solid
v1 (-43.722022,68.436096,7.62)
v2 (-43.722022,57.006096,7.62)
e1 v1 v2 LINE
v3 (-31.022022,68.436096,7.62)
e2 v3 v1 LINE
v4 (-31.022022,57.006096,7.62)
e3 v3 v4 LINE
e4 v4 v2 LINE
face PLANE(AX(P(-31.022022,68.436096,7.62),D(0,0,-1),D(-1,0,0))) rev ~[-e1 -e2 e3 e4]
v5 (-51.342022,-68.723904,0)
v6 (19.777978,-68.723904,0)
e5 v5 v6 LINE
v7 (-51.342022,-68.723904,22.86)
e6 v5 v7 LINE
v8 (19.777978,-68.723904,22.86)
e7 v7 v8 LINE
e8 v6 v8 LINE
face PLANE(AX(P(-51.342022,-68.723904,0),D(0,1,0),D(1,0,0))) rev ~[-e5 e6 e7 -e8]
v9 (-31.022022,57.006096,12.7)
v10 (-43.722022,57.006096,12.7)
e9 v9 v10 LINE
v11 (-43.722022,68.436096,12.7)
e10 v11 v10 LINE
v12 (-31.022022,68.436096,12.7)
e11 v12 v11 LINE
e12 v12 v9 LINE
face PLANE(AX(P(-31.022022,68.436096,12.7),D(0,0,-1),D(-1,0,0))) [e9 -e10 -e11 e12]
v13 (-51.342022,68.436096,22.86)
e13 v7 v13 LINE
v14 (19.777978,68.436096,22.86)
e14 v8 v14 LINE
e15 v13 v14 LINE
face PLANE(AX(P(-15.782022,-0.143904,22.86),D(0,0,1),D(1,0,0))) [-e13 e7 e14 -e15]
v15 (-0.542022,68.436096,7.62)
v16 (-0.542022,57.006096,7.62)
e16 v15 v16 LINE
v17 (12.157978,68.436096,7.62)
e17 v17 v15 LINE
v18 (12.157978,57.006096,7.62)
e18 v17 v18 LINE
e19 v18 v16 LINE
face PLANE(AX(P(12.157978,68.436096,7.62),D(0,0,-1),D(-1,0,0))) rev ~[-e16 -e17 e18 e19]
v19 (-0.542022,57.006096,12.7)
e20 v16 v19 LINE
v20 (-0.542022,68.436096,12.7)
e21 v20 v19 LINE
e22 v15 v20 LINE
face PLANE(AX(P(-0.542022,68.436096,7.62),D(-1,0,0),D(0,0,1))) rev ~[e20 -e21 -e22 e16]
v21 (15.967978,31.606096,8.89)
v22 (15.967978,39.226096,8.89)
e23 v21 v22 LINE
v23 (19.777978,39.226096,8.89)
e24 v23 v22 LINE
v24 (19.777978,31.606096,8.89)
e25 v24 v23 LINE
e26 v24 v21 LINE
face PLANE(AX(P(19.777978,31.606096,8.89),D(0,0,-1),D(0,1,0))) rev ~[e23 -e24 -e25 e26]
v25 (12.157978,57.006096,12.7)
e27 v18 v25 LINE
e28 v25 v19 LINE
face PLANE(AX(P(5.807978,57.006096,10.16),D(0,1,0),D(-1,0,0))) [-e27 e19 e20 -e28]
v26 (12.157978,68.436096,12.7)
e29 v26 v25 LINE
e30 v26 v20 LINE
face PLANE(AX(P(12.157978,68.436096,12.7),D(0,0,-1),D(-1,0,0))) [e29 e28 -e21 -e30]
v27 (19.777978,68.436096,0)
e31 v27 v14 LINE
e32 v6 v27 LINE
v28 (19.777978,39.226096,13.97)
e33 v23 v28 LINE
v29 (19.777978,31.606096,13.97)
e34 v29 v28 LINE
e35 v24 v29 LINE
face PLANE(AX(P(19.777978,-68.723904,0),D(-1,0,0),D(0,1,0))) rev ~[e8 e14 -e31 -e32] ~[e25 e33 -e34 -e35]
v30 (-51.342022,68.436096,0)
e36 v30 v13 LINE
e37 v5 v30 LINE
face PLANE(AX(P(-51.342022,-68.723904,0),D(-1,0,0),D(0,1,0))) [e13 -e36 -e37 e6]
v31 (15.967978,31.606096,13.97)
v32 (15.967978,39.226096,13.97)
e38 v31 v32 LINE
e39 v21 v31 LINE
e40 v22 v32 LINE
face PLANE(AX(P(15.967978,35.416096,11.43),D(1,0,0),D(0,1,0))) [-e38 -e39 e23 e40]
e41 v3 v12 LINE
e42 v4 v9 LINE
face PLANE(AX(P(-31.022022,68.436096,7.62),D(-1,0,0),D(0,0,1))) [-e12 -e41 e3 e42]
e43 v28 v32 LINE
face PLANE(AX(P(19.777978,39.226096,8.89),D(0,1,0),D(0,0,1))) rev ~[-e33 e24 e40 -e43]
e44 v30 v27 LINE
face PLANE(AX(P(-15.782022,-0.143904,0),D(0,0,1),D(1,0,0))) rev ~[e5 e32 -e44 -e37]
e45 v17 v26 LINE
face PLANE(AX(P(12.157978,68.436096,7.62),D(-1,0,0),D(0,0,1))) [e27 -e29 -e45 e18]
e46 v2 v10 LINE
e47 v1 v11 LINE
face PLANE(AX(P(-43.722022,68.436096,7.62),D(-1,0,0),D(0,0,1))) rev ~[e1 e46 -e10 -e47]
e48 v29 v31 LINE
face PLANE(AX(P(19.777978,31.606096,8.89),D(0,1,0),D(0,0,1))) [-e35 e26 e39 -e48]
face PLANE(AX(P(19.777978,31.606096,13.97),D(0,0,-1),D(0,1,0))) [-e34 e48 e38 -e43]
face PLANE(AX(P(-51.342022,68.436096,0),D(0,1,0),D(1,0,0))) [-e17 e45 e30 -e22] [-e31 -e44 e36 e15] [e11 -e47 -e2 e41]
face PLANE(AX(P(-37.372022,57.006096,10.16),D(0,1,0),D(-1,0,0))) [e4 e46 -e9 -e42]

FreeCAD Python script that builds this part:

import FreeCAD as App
import Part
import Sketcher

V = App.Vector
Q = App.Units.Quantity

doc = App.newDocument("Part")
params = doc.addObject("Spreadsheet::Sheet", "Params")
for row, (alias, value) in enumerate([
    ("sketch1_width", "2.8 in"),
    ("sketch1_height", "5.4 in"),
    ("pad1_length", "0.9 in"),
    ("sketch2_width", "0.5 in"),
    ("sketch2_height", "0.2 in"),
    ("pocket1_length", "0.45 in"),
    ("sketch3_width", "0.3 in"),
    ("sketch3_height", "0.2 in"),
    ("pocket2_length", "0.15 in"),
], start=1):
    params.set(f"A{row}", alias)
    params.set(f"B{row}", "=" + value)
    params.setAlias(f"B{row}", alias)

body = doc.addObject("PartDesign::Body", "Body")

sketch1 = doc.addObject("Sketcher::SketchObject", "Sketch")
body.addObject(sketch1)
sketch1.AttachmentSupport = (doc.XY_Plane, [""])
sketch1.MapMode = "FlatFace"
sketch1.addGeometry(Part.LineSegment(V(-51.342022, 68.436096, 0), V(-51.342022, -68.723904, 0)), False)
sketch1.addGeometry(Part.LineSegment(V(-51.342022, -68.723904, 0), V(19.777978, -68.723904, 0)), False)
sketch1.addGeometry(Part.LineSegment(V(19.777978, -68.723904, 0), V(19.777978, 68.436096, 0)), False)
sketch1.addGeometry(Part.LineSegment(V(19.777978, 68.436096, 0), V(-51.342022, 68.436096, 0)), False)
sketch1.addConstraint(Sketcher.Constraint("Coincident", 0, 2, 1, 1))
sketch1.addConstraint(Sketcher.Constraint("Coincident", 1, 2, 2, 1))
sketch1.addConstraint(Sketcher.Constraint("Coincident", 2, 2, 3, 1))
sketch1.addConstraint(Sketcher.Constraint("Coincident", 3, 2, 0, 1))
sketch1.addConstraint(Sketcher.Constraint("Vertical", 0))
sketch1.addConstraint(Sketcher.Constraint("Horizontal", 1))
sketch1.addConstraint(Sketcher.Constraint("Vertical", 2))
sketch1.addConstraint(Sketcher.Constraint("Horizontal", 3))
sketch1.addConstraint(Sketcher.Constraint("DistanceX", 1, 1, 1, 2, Q("2.8 in")))
sketch1.addConstraint(Sketcher.Constraint("DistanceY", 0, 2, 0, 1, Q("5.4 in")))
sketch1.addConstraint(Sketcher.Constraint("DistanceX", -1, 1, 1, 2, Q("19.777978 mm")))
sketch1.addConstraint(Sketcher.Constraint("DistanceY", 0, 2, -1, 1, Q("68.723904 mm")))
sketch1.setExpression("Constraints[8]", "Params.sketch1_width")
sketch1.setExpression("Constraints[9]", "Params.sketch1_height")
pad1 = doc.addObject("PartDesign::Pad", "Pad")
body.addObject(pad1)
pad1.Profile = sketch1
pad1.setExpression("Length", "Params.pad1_length")

sketch2 = doc.addObject("Sketcher::SketchObject", "Sketch001")
body.addObject(sketch2)
sketch2.AttachmentSupport = (doc.XZ_Plane, [""])
sketch2.MapMode = "FlatFace"
sketch2.AttachmentOffset = App.Placement(V(0, 0, -68.436096), App.Rotation())
sketch2.addGeometry(Part.LineSegment(V(12.157978, 12.7, 0), V(12.157978, 7.62, 0)), False)
sketch2.addGeometry(Part.LineSegment(V(12.157978, 7.62, 0), V(-0.542022, 7.62, 0)), False)
sketch2.addGeometry(Part.LineSegment(V(-0.542022, 7.62, 0), V(-0.542022, 12.7, 0)), False)
sketch2.addGeometry(Part.LineSegment(V(-0.542022, 12.7, 0), V(12.157978, 12.7, 0)), False)
sketch2.addGeometry(Part.LineSegment(V(-31.022022, 12.7, 0), V(-31.022022, 7.62, 0)), False)
sketch2.addGeometry(Part.LineSegment(V(-31.022022, 7.62, 0), V(-43.722022, 7.62, 0)), False)
sketch2.addGeometry(Part.LineSegment(V(-43.722022, 7.62, 0), V(-43.722022, 12.7, 0)), False)
sketch2.addGeometry(Part.LineSegment(V(-43.722022, 12.7, 0), V(-31.022022, 12.7, 0)), False)
sketch2.addConstraint(Sketcher.Constraint("Coincident", 0, 2, 1, 1))
sketch2.addConstraint(Sketcher.Constraint("Coincident", 1, 2, 2, 1))
sketch2.addConstraint(Sketcher.Constraint("Coincident", 2, 2, 3, 1))
sketch2.addConstraint(Sketcher.Constraint("Coincident", 3, 2, 0, 1))
sketch2.addConstraint(Sketcher.Constraint("Coincident", 4, 2, 5, 1))
sketch2.addConstraint(Sketcher.Constraint("Coincident", 5, 2, 6, 1))
sketch2.addConstraint(Sketcher.Constraint("Coincident", 6, 2, 7, 1))
sketch2.addConstraint(Sketcher.Constraint("Coincident", 7, 2, 4, 1))
sketch2.addConstraint(Sketcher.Constraint("Vertical", 0))
sketch2.addConstraint(Sketcher.Constraint("Horizontal", 1))
sketch2.addConstraint(Sketcher.Constraint("Vertical", 2))
sketch2.addConstraint(Sketcher.Constraint("Horizontal", 3))
sketch2.addConstraint(Sketcher.Constraint("Vertical", 4))
sketch2.addConstraint(Sketcher.Constraint("Horizontal", 5))
sketch2.addConstraint(Sketcher.Constraint("Vertical", 6))
sketch2.addConstraint(Sketcher.Constraint("Horizontal", 7))
sketch2.addConstraint(Sketcher.Constraint("Horizontal", 1, 2, 4, 2))
sketch2.addConstraint(Sketcher.Constraint("Horizontal", 3, 2, 6, 2))
sketch2.addConstraint(Sketcher.Constraint("Equal", 3, 5))
sketch2.addConstraint(Sketcher.Constraint("DistanceX", 1, 2, 1, 1, Q("0.5 in")))
sketch2.addConstraint(Sketcher.Constraint("DistanceY", 0, 2, 0, 1, Q("0.2 in")))
sketch2.addConstraint(Sketcher.Constraint("DistanceY", -1, 1, 0, 2, Q("0.3 in")))
sketch2.addConstraint(Sketcher.Constraint("DistanceX", 4, 2, 1, 2, Q("1.2 in")))
sketch2.addConstraint(Sketcher.Constraint("DistanceX", 4, 2, -1, 1, Q("31.022022 mm")))
sketch2.setExpression("Constraints[19]", "Params.sketch2_width")
sketch2.setExpression("Constraints[20]", "Params.sketch2_height")
pocket1 = doc.addObject("PartDesign::Pocket", "Pocket")
body.addObject(pocket1)
pocket1.Profile = sketch2
pocket1.setExpression("Length", "Params.pocket1_length")
pocket1.Reversed = True

sketch3 = doc.addObject("Sketcher::SketchObject", "Sketch002")
body.addObject(sketch3)
sketch3.AttachmentSupport = (doc.YZ_Plane, [""])
sketch3.MapMode = "FlatFace"
sketch3.AttachmentOffset = App.Placement(V(0, 0, 19.777978), App.Rotation())
sketch3.addGeometry(Part.LineSegment(V(31.606096, 13.97, 0), V(31.606096, 8.89, 0)), False)
sketch3.addGeometry(Part.LineSegment(V(31.606096, 8.89, 0), V(39.226096, 8.89, 0)), False)
sketch3.addGeometry(Part.LineSegment(V(39.226096, 8.89, 0), V(39.226096, 13.97, 0)), False)
sketch3.addGeometry(Part.LineSegment(V(39.226096, 13.97, 0), V(31.606096, 13.97, 0)), False)
sketch3.addConstraint(Sketcher.Constraint("Coincident", 0, 2, 1, 1))
sketch3.addConstraint(Sketcher.Constraint("Coincident", 1, 2, 2, 1))
sketch3.addConstraint(Sketcher.Constraint("Coincident", 2, 2, 3, 1))
sketch3.addConstraint(Sketcher.Constraint("Coincident", 3, 2, 0, 1))
sketch3.addConstraint(Sketcher.Constraint("Vertical", 0))
sketch3.addConstraint(Sketcher.Constraint("Horizontal", 1))
sketch3.addConstraint(Sketcher.Constraint("Vertical", 2))
sketch3.addConstraint(Sketcher.Constraint("Horizontal", 3))
sketch3.addConstraint(Sketcher.Constraint("DistanceX", 1, 1, 1, 2, Q("0.3 in")))
sketch3.addConstraint(Sketcher.Constraint("DistanceY", 0, 2, 0, 1, Q("0.2 in")))
sketch3.addConstraint(Sketcher.Constraint("DistanceY", -1, 1, 0, 2, Q("0.35 in")))
sketch3.addConstraint(Sketcher.Constraint("DistanceX", -1, 1, 0, 2, Q("31.606096 mm")))
sketch3.setExpression("Constraints[8]", "Params.sketch3_width")
sketch3.setExpression("Constraints[9]", "Params.sketch3_height")
pocket2 = doc.addObject("PartDesign::Pocket", "Pocket001")
body.addObject(pocket2)
pocket2.Profile = sketch3
pocket2.setExpression("Length", "Params.pocket2_length")

doc.recompute()
